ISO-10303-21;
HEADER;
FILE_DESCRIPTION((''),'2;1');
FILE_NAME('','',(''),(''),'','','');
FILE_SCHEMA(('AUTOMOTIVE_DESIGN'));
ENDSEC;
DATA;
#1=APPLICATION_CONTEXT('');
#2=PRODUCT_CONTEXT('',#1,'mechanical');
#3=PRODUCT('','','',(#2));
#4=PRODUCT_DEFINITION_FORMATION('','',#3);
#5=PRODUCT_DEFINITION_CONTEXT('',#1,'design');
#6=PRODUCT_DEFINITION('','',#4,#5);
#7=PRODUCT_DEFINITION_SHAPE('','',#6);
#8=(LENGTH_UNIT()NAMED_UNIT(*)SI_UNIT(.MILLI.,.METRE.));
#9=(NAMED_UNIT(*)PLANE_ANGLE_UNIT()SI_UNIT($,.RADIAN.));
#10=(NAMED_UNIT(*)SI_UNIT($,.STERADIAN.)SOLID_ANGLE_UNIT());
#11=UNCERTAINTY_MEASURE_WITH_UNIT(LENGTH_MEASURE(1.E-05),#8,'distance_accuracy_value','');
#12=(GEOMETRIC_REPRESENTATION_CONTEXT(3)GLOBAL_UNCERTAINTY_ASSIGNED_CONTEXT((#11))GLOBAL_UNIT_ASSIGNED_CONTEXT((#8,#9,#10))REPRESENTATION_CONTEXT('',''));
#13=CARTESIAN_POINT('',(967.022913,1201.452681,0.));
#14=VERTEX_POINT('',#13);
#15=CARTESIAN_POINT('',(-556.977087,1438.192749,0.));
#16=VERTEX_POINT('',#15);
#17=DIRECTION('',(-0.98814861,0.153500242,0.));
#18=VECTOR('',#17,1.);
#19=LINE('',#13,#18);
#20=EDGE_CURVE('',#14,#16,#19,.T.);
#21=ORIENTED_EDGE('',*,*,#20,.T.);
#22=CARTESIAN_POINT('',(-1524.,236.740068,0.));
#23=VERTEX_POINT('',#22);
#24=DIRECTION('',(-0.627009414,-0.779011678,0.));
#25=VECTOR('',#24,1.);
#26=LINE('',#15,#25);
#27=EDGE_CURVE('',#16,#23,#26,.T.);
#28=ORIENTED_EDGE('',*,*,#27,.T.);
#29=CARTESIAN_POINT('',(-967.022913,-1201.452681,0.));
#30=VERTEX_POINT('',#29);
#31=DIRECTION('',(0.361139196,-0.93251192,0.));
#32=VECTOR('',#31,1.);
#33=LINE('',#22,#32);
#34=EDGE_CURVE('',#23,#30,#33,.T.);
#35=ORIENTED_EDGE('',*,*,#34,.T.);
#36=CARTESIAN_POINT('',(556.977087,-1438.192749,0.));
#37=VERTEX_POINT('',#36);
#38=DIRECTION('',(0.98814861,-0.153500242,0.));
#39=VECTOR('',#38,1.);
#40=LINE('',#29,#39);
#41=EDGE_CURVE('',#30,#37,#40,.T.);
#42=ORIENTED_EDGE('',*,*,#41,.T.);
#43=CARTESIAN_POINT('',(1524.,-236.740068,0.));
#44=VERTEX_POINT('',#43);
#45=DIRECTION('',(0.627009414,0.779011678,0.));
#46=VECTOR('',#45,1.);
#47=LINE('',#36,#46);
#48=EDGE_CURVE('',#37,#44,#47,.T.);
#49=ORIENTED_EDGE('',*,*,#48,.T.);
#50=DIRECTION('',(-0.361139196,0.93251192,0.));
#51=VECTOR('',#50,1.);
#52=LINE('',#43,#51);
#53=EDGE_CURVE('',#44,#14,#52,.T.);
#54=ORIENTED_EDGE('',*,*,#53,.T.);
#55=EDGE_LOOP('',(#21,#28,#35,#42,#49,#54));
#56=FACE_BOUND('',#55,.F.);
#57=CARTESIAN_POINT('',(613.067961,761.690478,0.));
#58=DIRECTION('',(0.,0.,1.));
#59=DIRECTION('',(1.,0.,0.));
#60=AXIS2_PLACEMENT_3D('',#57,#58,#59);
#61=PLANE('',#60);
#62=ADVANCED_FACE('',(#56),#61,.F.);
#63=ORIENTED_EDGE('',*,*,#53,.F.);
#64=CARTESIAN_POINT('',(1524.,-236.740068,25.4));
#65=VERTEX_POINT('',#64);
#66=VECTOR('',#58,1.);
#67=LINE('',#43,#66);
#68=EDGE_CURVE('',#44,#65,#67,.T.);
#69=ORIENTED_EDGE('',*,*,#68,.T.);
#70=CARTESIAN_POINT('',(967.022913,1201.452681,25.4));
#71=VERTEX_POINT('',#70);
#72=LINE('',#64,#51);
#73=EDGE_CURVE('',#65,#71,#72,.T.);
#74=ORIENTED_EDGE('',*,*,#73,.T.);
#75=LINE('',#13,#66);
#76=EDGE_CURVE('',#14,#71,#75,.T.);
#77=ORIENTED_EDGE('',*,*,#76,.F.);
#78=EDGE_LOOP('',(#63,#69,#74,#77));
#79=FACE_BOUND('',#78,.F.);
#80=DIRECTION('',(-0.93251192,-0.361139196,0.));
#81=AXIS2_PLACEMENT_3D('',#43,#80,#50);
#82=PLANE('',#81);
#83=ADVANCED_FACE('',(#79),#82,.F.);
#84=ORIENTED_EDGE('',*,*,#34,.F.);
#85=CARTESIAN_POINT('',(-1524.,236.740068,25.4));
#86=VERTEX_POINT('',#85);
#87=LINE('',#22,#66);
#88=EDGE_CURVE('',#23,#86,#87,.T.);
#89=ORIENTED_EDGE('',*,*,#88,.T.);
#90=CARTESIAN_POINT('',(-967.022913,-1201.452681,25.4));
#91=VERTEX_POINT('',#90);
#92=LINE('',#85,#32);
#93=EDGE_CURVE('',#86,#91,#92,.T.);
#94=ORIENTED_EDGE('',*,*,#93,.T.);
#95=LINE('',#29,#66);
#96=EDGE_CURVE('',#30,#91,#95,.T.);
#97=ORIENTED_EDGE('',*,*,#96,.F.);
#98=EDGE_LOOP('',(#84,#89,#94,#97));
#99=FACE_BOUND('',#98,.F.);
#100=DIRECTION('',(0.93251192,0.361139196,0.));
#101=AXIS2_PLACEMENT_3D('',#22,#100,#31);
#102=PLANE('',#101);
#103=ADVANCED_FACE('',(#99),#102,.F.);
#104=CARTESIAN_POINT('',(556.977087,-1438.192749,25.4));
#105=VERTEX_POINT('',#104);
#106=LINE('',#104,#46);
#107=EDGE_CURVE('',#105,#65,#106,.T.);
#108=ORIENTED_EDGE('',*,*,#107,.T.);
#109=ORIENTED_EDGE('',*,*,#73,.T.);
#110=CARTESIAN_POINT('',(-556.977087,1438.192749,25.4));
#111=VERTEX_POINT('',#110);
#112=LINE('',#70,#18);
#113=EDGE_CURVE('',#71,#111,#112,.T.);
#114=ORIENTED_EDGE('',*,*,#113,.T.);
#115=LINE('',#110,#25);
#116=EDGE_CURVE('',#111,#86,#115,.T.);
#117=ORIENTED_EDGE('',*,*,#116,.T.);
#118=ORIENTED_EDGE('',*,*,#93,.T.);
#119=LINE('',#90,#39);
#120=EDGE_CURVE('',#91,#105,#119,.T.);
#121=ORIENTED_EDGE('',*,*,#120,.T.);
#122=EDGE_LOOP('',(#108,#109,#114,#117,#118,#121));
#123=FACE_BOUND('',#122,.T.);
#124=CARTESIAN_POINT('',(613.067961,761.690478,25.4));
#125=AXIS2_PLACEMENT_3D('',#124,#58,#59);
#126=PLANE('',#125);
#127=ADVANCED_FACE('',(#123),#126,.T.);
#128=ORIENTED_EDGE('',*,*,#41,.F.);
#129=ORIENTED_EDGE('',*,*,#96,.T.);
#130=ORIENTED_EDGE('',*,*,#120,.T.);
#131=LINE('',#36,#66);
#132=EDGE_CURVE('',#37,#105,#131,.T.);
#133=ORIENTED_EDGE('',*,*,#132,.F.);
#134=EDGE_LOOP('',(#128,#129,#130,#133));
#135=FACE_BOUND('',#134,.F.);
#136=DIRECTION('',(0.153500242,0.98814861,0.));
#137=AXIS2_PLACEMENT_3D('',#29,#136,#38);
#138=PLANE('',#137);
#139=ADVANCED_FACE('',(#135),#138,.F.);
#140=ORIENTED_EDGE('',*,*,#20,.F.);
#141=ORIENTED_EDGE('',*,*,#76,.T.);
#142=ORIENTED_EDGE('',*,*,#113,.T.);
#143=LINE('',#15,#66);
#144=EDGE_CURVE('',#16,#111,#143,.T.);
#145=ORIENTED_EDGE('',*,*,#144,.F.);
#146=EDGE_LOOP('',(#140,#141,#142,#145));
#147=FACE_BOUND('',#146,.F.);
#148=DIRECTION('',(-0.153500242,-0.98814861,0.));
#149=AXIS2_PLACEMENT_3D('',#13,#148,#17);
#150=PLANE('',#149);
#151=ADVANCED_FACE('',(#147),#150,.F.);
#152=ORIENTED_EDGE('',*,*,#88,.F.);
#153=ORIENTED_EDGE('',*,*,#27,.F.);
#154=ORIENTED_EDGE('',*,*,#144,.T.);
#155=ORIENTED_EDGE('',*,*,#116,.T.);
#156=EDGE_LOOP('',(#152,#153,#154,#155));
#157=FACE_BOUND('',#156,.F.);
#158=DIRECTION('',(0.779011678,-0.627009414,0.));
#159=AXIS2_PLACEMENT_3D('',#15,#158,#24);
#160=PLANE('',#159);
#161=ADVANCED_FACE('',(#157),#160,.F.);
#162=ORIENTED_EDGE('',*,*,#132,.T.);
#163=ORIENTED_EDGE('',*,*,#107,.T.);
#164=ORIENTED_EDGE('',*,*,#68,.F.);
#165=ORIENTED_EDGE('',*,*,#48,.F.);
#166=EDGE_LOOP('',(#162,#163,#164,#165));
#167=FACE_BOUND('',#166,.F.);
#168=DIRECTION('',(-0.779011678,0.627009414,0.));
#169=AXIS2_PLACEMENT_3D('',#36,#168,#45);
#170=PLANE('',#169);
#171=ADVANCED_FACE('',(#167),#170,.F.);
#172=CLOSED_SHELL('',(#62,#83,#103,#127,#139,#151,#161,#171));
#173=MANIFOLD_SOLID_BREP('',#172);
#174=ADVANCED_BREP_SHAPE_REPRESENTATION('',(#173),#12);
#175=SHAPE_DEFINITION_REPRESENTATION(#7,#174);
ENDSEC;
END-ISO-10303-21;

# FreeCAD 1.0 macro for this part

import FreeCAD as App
import Part
import Sketcher
from FreeCAD import Vector
Q = App.Units.Quantity


def add_polygon(sketch, points):
    """Adds a closed chain of lines whose ends are joined by coincident constraints."""
    first, n = sketch.GeometryCount, len(points)
    for a, b in zip(points, points[1:] + points[:1]):
        sketch.addGeometry(Part.LineSegment(App.Vector(*a, 0), App.Vector(*b, 0)), False)
    for i in range(n):
        sketch.addConstraint(Sketcher.Constraint("Coincident", first + i, 2, first + (i + 1) % n, 1))

doc = App.newDocument("Part")
body = doc.addObject("PartDesign::Body", "Body")

sketch1 = body.newObject("Sketcher::SketchObject", "Sketch")
sketch1.AttachmentSupport = (doc.getObject("XY_Plane"), [""])
sketch1.MapMode = "FlatFace"
add_polygon(sketch1, [(967, 1201), (-557, 1438), (-1524, 237), (-967, -1201), (557, -1438), (1524, -237)])
sketch1.addConstraint(Sketcher.Constraint("Symmetric", 0, 2, 3, 2, -1, 1))
sketch1.addConstraint(Sketcher.Constraint("Symmetric", 1, 2, 4, 2, -1, 1))
sketch1.addConstraint(Sketcher.Constraint("Symmetric", 2, 2, 5, 2, -1, 1))
sketch1.addConstraint(Sketcher.Constraint("Equal", 0, 1))
sketch1.addConstraint(Sketcher.Constraint("Equal", 1, 2))
sketch1.addConstraint(Sketcher.Constraint("DistanceX", 1, 2, -1, 1, Q("60 in")))
sketch1.addConstraint(Sketcher.Constraint("DistanceX", 2, 2, 3, 2, Q("60 in")))
sketch1.addConstraint(Sketcher.Constraint("DistanceY", 3, 2, 0, 2, Q("2876.385498 mm")))
sketch1.addConstraint(Sketcher.Constraint("Distance", 0, Q("1542.27814 mm")))
pad1 = body.newObject("PartDesign::Pad", "Pad")
pad1.Profile = sketch1
pad1.Length = Q("1 in")

doc.recompute()
